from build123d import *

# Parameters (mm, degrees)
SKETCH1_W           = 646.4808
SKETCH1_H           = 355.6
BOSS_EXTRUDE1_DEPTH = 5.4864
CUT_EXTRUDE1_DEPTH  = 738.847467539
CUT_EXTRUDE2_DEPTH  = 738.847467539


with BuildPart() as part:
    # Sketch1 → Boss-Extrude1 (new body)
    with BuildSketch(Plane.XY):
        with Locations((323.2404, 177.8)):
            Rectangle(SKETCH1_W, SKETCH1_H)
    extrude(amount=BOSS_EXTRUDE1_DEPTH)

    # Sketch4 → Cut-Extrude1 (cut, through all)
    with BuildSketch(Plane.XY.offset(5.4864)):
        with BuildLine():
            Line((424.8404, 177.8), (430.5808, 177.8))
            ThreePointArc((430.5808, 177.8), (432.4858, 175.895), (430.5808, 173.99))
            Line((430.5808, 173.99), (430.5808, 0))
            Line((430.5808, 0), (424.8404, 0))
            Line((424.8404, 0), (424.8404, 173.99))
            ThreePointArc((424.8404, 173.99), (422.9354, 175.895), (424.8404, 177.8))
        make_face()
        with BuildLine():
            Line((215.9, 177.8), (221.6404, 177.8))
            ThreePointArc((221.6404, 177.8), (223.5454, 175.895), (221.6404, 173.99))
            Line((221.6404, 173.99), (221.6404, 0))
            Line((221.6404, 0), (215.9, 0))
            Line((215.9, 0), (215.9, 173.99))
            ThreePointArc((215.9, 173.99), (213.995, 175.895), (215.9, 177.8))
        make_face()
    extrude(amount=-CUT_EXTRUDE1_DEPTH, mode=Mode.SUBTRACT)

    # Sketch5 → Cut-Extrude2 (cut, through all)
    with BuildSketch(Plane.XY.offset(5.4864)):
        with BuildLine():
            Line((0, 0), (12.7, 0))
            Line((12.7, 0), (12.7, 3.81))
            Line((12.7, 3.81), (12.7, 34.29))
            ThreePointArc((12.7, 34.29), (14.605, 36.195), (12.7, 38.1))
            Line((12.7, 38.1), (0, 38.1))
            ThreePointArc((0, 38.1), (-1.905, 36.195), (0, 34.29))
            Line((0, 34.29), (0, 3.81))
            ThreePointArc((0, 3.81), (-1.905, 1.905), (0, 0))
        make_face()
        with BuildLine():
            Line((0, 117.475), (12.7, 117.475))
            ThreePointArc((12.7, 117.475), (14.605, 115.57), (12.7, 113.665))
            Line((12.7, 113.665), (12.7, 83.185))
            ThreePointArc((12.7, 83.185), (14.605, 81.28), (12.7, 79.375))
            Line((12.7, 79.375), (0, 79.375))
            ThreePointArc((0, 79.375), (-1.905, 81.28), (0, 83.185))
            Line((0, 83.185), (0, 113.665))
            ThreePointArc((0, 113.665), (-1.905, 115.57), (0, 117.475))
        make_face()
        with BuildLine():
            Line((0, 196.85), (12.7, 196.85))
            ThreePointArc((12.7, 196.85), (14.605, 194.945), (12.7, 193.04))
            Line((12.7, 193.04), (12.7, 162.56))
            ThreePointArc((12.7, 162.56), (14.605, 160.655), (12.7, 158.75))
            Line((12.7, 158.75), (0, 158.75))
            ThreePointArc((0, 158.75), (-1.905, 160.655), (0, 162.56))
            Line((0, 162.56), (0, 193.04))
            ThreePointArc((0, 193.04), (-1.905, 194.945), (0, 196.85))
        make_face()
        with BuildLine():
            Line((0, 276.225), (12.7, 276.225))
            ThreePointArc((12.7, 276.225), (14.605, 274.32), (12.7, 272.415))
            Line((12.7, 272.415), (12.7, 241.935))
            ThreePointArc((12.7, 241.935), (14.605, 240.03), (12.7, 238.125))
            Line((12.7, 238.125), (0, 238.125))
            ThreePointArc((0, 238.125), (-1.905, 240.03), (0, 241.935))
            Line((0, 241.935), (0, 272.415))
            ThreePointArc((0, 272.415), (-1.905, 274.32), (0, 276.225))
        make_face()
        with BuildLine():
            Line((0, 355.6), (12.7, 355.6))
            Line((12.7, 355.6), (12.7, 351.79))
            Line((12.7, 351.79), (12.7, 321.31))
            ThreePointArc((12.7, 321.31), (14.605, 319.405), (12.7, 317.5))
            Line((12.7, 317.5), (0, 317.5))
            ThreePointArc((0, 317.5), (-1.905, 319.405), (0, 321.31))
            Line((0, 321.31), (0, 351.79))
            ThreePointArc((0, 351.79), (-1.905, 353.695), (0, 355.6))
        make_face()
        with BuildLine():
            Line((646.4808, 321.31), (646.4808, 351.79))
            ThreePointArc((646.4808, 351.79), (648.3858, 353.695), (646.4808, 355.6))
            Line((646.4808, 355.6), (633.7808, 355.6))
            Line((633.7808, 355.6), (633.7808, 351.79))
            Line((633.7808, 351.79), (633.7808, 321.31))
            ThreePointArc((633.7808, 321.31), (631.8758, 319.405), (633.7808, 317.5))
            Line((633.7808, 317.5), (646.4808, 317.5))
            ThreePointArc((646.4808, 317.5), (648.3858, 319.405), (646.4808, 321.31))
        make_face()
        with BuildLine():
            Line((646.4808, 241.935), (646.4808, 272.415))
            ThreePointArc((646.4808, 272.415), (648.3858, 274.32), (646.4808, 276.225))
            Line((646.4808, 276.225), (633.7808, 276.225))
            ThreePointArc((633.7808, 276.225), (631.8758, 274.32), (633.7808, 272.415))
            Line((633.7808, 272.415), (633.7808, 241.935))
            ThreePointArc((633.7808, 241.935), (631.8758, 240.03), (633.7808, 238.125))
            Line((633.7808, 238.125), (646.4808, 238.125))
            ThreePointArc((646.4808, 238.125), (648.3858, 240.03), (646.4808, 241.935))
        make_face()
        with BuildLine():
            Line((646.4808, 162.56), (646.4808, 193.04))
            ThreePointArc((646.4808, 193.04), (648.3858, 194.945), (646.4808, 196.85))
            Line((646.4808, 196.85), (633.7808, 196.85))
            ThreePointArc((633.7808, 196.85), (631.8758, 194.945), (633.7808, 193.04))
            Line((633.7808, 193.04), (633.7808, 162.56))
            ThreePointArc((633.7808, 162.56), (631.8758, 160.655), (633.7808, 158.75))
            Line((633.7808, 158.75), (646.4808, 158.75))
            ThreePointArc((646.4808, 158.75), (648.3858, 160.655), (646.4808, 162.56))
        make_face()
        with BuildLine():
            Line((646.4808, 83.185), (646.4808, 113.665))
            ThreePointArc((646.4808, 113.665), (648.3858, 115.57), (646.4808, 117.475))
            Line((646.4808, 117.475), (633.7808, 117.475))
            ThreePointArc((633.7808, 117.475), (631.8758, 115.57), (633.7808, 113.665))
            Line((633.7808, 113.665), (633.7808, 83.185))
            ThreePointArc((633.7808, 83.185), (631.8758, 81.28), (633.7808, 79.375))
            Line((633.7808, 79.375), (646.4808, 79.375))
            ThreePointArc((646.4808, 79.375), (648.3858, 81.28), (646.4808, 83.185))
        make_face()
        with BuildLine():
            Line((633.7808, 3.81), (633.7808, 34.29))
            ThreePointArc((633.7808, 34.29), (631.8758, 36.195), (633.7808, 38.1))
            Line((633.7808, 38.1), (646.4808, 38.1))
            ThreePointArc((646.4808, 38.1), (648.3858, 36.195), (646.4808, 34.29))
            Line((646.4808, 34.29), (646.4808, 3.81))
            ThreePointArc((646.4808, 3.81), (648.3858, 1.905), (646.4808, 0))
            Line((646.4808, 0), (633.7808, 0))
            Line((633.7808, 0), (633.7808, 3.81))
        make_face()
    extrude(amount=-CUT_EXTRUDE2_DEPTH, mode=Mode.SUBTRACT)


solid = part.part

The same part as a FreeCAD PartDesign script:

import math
import FreeCAD as App
import Part
import Sketcher
Q = App.Units.Quantity


def add_polygon(sketch, points):
    """Adds a closed chain of lines whose ends are joined by coincident constraints."""
    first, n = sketch.GeometryCount, len(points)
    for a, b in zip(points, points[1:] + points[:1]):
        sketch.addGeometry(Part.LineSegment(App.Vector(*a, 0), App.Vector(*b, 0)), False)
    for i in range(n):
        sketch.addConstraint(Sketcher.Constraint("Coincident", first + i, 2, first + (i + 1) % n, 1))

doc = App.newDocument("Part")
body = doc.addObject("PartDesign::Body", "Body")

sketch1 = body.newObject("Sketcher::SketchObject", "Sketch")
sketch1.AttachmentSupport = (doc.getObject("XY_Plane"), [""])
sketch1.MapMode = "FlatFace"
add_polygon(sketch1, [(0, 356), (0, 0), (646, 0), (646, 356)])
sketch1.addConstraint(Sketcher.Constraint("Vertical", 0))
sketch1.addConstraint(Sketcher.Constraint("Horizontal", 1))
sketch1.addConstraint(Sketcher.Constraint("Vertical", 2))
sketch1.addConstraint(Sketcher.Constraint("Horizontal", 3))
sketch1.addConstraint(Sketcher.Constraint("Coincident", 0, 2, -1, 1))
sketch1.addConstraint(Sketcher.Constraint("DistanceY", 0, 2, 0, 1, Q("14 in")))
sketch1.addConstraint(Sketcher.Constraint("DistanceX", 1, 1, 1, 2, Q("25.452 in")))
pad1 = body.newObject("PartDesign::Pad", "Pad")
pad1.Profile = sketch1
pad1.Length = Q("0.216 in")

sketch2 = body.newObject("Sketcher::SketchObject", "Sketch001")
sketch2.AttachmentSupport = (doc.getObject("XY_Plane"), [""])
sketch2.MapMode = "FlatFace"
sketch2.AttachmentOffset = App.Placement(App.Vector(0, 0, 0.216 * 25.4), App.Rotation())
sketch2.addGeometry(Part.LineSegment(App.Vector(430.6, 177.8, 0), App.Vector(424.8, 177.8, 0)), False)
sketch2.addGeometry(Part.ArcOfCircle(Part.Circle(App.Vector(424.8, 175.9, 0), App.Vector(0, 0, 1), 1.9), math.radians(90), math.radians(270)), False)
sketch2.addGeometry(Part.LineSegment(App.Vector(424.8, 174, 0), App.Vector(424.8, 0, 0)), False)
sketch2.addGeometry(Part.LineSegment(App.Vector(424.8, 0, 0), App.Vector(430.6, 0, 0)), False)
sketch2.addGeometry(Part.LineSegment(App.Vector(430.6, 0, 0), App.Vector(430.6, 174, 0)), False)
sketch2.addGeometry(Part.ArcOfCircle(Part.Circle(App.Vector(430.6, 175.9, 0), App.Vector(0, 0, 1), 1.9), math.radians(-90), math.radians(90)), False)
sketch2.addGeometry(Part.LineSegment(App.Vector(221.6, 177.8, 0), App.Vector(215.9, 177.8, 0)), False)
sketch2.addGeometry(Part.ArcOfCircle(Part.Circle(App.Vector(215.9, 175.9, 0), App.Vector(0, 0, 1), 1.9), math.radians(90), math.radians(270)), False)
sketch2.addGeometry(Part.LineSegment(App.Vector(215.9, 174, 0), App.Vector(215.9, 0, 0)), False)
sketch2.addGeometry(Part.LineSegment(App.Vector(215.9, 0, 0), App.Vector(221.6, 0, 0)), False)
sketch2.addGeometry(Part.LineSegment(App.Vector(221.6, 0, 0), App.Vector(221.6, 174, 0)), False)
sketch2.addGeometry(Part.ArcOfCircle(Part.Circle(App.Vector(221.6, 175.9, 0), App.Vector(0, 0, 1), 1.9), math.radians(-90), math.radians(90)), False)
sketch2.addConstraint(Sketcher.Constraint("Tangent", 0, 2, 1, 1))
sketch2.addConstraint(Sketcher.Constraint("Coincident", 1, 2, 2, 1))
sketch2.addConstraint(Sketcher.Constraint("Coincident", 2, 2, 3, 1))
sketch2.addConstraint(Sketcher.Constraint("Coincident", 3, 2, 4, 1))
sketch2.addConstraint(Sketcher.Constraint("Coincident", 4, 2, 5, 1))
sketch2.addConstraint(Sketcher.Constraint("Tangent", 5, 2, 0, 1))
sketch2.addConstraint(Sketcher.Constraint("Tangent", 6, 2, 7, 1))
sketch2.addConstraint(Sketcher.Constraint("Coincident", 7, 2, 8, 1))
sketch2.addConstraint(Sketcher.Constraint("Coincident", 8, 2, 9, 1))
sketch2.addConstraint(Sketcher.Constraint("Coincident", 9, 2, 10, 1))
sketch2.addConstraint(Sketcher.Constraint("Coincident", 10, 2, 11, 1))
sketch2.addConstraint(Sketcher.Constraint("Tangent", 11, 2, 6, 1))
sketch2.addConstraint(Sketcher.Constraint("Horizontal", 0))
sketch2.addConstraint(Sketcher.Constraint("Vertical", 2))
sketch2.addConstraint(Sketcher.Constraint("Horizontal", 3))
sketch2.addConstraint(Sketcher.Constraint("Vertical", 4))
sketch2.addConstraint(Sketcher.Constraint("Horizontal", 6))
sketch2.addConstraint(Sketcher.Constraint("Vertical", 8))
sketch2.addConstraint(Sketcher.Constraint("Horizontal", 9))
sketch2.addConstraint(Sketcher.Constraint("Vertical", 10))
sketch2.addConstraint(Sketcher.Constraint("Equal", 1, 5))
sketch2.addConstraint(Sketcher.Constraint("Equal", 5, 7))
sketch2.addConstraint(Sketcher.Constraint("Equal", 7, 11))
sketch2.addConstraint(Sketcher.Constraint("PointOnObject", 2, 2, -1))
sketch2.addConstraint(Sketcher.Constraint("PointOnObject", 8, 2, -1))
sketch2.addConstraint(Sketcher.Constraint("Horizontal", 5, 3, 7, 3))
sketch2.addConstraint(Sketcher.Constraint("Vertical", 0, 2, 1, 2))
sketch2.addConstraint(Sketcher.Constraint("Vertical", 5, 3, 3, 2))
sketch2.addConstraint(Sketcher.Constraint("Vertical", 6, 2, 7, 2))
sketch2.addConstraint(Sketcher.Constraint("Vertical", 11, 3, 9, 2))
sketch2.addConstraint(Sketcher.Constraint("Equal", 3, 6))
sketch2.addConstraint(Sketcher.Constraint("DistanceY", -1, 1, 0, 2, Q("7 in")))
sketch2.addConstraint(Sketcher.Constraint("Radius", 1, Q("0.075 in")))
sketch2.addConstraint(Sketcher.Constraint("DistanceX", 11, 3, 1, 3, Q("8 in")))
sketch2.addConstraint(Sketcher.Constraint("DistanceX", -1, 1, 7, 3, Q("8.5 in")))
sketch2.addConstraint(Sketcher.Constraint("DistanceX", 0, 2, 0, 1, Q("0.226 in")))
pocket1 = body.newObject("PartDesign::Pocket", "Pocket")
pocket1.Profile = sketch2
pocket1.Type = "ThroughAll"

sketch3 = body.newObject("Sketcher::SketchObject", "Sketch002")
sketch3.AttachmentSupport = (doc.getObject("XY_Plane"), [""])
sketch3.MapMode = "FlatFace"
sketch3.AttachmentOffset = App.Placement(App.Vector(0, 0, 0.216 * 25.4), App.Rotation())
sketch3.addGeometry(Part.LineSegment(App.Vector(0, 0, 0), App.Vector(12.7, 0, 0)), False)
sketch3.addGeometry(Part.LineSegment(App.Vector(12.7, 0, 0), App.Vector(12.7, 34.3, 0)), False)
sketch3.addGeometry(Part.ArcOfCircle(Part.Circle(App.Vector(12.7, 36.2, 0), App.Vector(0, 0, 1), 1.9), math.radians(-90), math.radians(90)), False)
sketch3.addGeometry(Part.LineSegment(App.Vector(12.7, 38.1, 0), App.Vector(0, 38.1, 0)), False)
sketch3.addGeometry(Part.ArcOfCircle(Part.Circle(App.Vector(0, 36.2, 0), App.Vector(0, 0, 1), 1.9), math.radians(90), math.radians(270)), False)
sketch3.addGeometry(Part.LineSegment(App.Vector(0, 34.3, 0), App.Vector(0, 3.8, 0)), False)
sketch3.addGeometry(Part.ArcOfCircle(Part.Circle(App.Vector(0, 1.9, 0), App.Vector(0, 0, 1), 1.9), math.radians(90), math.radians(270)), False)
sketch3.addGeometry(Part.LineSegment(App.Vector(12.7, 117.5, 0), App.Vector(0, 117.5, 0)), False)
sketch3.addGeometry(Part.ArcOfCircle(Part.Circle(App.Vector(0, 115.6, 0), App.Vector(0, 0, 1), 1.9), math.radians(90), math.radians(270)), False)
sketch3.addGeometry(Part.LineSegment(App.Vector(0, 113.7, 0), App.Vector(0, 83.2, 0)), False)
sketch3.addGeometry(Part.ArcOfCircle(Part.Circle(App.Vector(0, 81.3, 0), App.Vector(0, 0, 1), 1.9), math.radians(90), math.radians(270)), False)
sketch3.addGeometry(Part.LineSegment(App.Vector(0, 79.4, 0), App.Vector(12.7, 79.4, 0)), False)
sketch3.addGeometry(Part.ArcOfCircle(Part.Circle(App.Vector(12.7, 81.3, 0), App.Vector(0, 0, 1), 1.9), math.radians(-90), math.radians(90)), False)
sketch3.addGeometry(Part.LineSegment(App.Vector(12.7, 83.2, 0), App.Vector(12.7, 113.7, 0)), False)
sketch3.addGeometry(Part.ArcOfCircle(Part.Circle(App.Vector(12.7, 115.6, 0), App.Vector(0, 0, 1), 1.9), math.radians(-90), math.radians(90)), False)
sketch3.addGeometry(Part.LineSegment(App.Vector(12.7, 196.8, 0), App.Vector(0, 196.8, 0)), False)
sketch3.addGeometry(Part.ArcOfCircle(Part.Circle(App.Vector(0, 194.9, 0), App.Vector(0, 0, 1), 1.9), math.radians(90), math.radians(270)), False)
sketch3.addGeometry(Part.LineSegment(App.Vector(0, 193, 0), App.Vector(0, 162.6, 0)), False)
sketch3.addGeometry(Part.ArcOfCircle(Part.Circle(App.Vector(0, 160.7, 0), App.Vector(0, 0, 1), 1.9), math.radians(90), math.radians(270)), False)
sketch3.addGeometry(Part.LineSegment(App.Vector(0, 158.8, 0), App.Vector(12.7, 158.8, 0)), False)
sketch3.addGeometry(Part.ArcOfCircle(Part.Circle(App.Vector(12.7, 160.7, 0), App.Vector(0, 0, 1), 1.9), math.radians(-90), math.radians(90)), False)
sketch3.addGeometry(Part.LineSegment(App.Vector(12.7, 162.6, 0), App.Vector(12.7, 193, 0)), False)
sketch3.addGeometry(Part.ArcOfCircle(Part.Circle(App.Vector(12.7, 194.9, 0), App.Vector(0, 0, 1), 1.9), math.radians(-90), math.radians(90)), False)
sketch3.addGeometry(Part.LineSegment(App.Vector(12.7, 276.2, 0), App.Vector(0, 276.2, 0)), False)
sketch3.addGeometry(Part.ArcOfCircle(Part.Circle(App.Vector(0, 274.3, 0), App.Vector(0, 0, 1), 1.9), math.radians(90), math.radians(270)), False)
sketch3.addGeometry(Part.LineSegment(App.Vector(0, 272.4, 0), App.Vector(0, 241.9, 0)), False)
sketch3.addGeometry(Part.ArcOfCircle(Part.Circle(App.Vector(0, 240, 0), App.Vector(0, 0, 1), 1.9), math.radians(90), math.radians(270)), False)
sketch3.addGeometry(Part.LineSegment(App.Vector(0, 238.1, 0), App.Vector(12.7, 238.1, 0)), False)
sketch3.addGeometry(Part.ArcOfCircle(Part.Circle(App.Vector(12.7, 240, 0), App.Vector(0, 0, 1), 1.9), math.radians(-90), math.radians(90)), False)
sketch3.addGeometry(Part.LineSegment(App.Vector(12.7, 241.9, 0), App.Vector(12.7, 272.4, 0)), False)
sketch3.addGeometry(Part.ArcOfCircle(Part.Circle(App.Vector(12.7, 274.3, 0), App.Vector(0, 0, 1), 1.9), math.radians(-90), math.radians(90)), False)
sketch3.addGeometry(Part.LineSegment(App.Vector(12.7, 355.6, 0), App.Vector(0, 355.6, 0)), False)
sketch3.addGeometry(Part.ArcOfCircle(Part.Circle(App.Vector(0, 353.7, 0), App.Vector(0, 0, 1), 1.9), math.radians(90), math.radians(270)), False)
sketch3.addGeometry(Part.LineSegment(App.Vector(0, 351.8, 0), App.Vector(0, 321.3, 0)), False)
sketch3.addGeometry(Part.ArcOfCircle(Part.Circle(App.Vector(0, 319.4, 0), App.Vector(0, 0, 1), 1.9), math.radians(90), math.radians(270)), False)
sketch3.addGeometry(Part.LineSegment(App.Vector(0, 317.5, 0), App.Vector(12.7, 317.5, 0)), False)
sketch3.addGeometry(Part.ArcOfCircle(Part.Circle(App.Vector(12.7, 319.4, 0), App.Vector(0, 0, 1), 1.9), math.radians(-90), math.radians(90)), False)
sketch3.addGeometry(Part.LineSegment(App.Vector(12.7, 321.3, 0), App.Vector(12.7, 355.6, 0)), False)
sketch3.addGeometry(Part.LineSegment(App.Vector(646.5, 321.3, 0), App.Vector(646.5, 351.8, 0)), False)
sketch3.addGeometry(Part.ArcOfCircle(Part.Circle(App.Vector(646.5, 353.7, 0), App.Vector(0, 0, 1), 1.9), math.radians(-90), math.radians(90)), False)
sketch3.addGeometry(Part.LineSegment(App.Vector(646.5, 355.6, 0), App.Vector(633.8, 355.6, 0)), False)
sketch3.addGeometry(Part.LineSegment(App.Vector(633.8, 355.6, 0), App.Vector(633.8, 321.3, 0)), False)
sketch3.addGeometry(Part.ArcOfCircle(Part.Circle(App.Vector(633.8, 319.4, 0), App.Vector(0, 0, 1), 1.9), math.radians(90), math.radians(270)), False)
sketch3.addGeometry(Part.LineSegment(App.Vector(633.8, 317.5, 0), App.Vector(646.5, 317.5, 0)), False)
sketch3.addGeometry(Part.ArcOfCircle(Part.Circle(App.Vector(646.5, 319.4, 0), App.Vector(0, 0, 1), 1.9), math.radians(-90), math.radians(90)), False)
sketch3.addGeometry(Part.LineSegment(App.Vector(646.5, 241.9, 0), App.Vector(646.5, 272.4, 0)), False)
sketch3.addGeometry(Part.ArcOfCircle(Part.Circle(App.Vector(646.5, 274.3, 0), App.Vector(0, 0, 1), 1.9), math.radians(-90), math.radians(90)), False)
sketch3.addGeometry(Part.LineSegment(App.Vector(646.5, 276.2, 0), App.Vector(633.8, 276.2, 0)), False)
sketch3.addGeometry(Part.ArcOfCircle(Part.Circle(App.Vector(633.8, 274.3, 0), App.Vector(0, 0, 1), 1.9), math.radians(90), math.radians(270)), False)
sketch3.addGeometry(Part.LineSegment(App.Vector(633.8, 272.4, 0), App.Vector(633.8, 241.9, 0)), False)
sketch3.addGeometry(Part.ArcOfCircle(Part.Circle(App.Vector(633.8, 240, 0), App.Vector(0, 0, 1), 1.9), math.radians(90), math.radians(270)), False)
sketch3.addGeometry(Part.LineSegment(App.Vector(633.8, 238.1, 0), App.Vector(646.5, 238.1, 0)), False)
sketch3.addGeometry(Part.ArcOfCircle(Part.Circle(App.Vector(646.5, 240, 0), App.Vector(0, 0, 1), 1.9), math.radians(-90), math.radians(90)), False)
sketch3.addGeometry(Part.LineSegment(App.Vector(646.5, 162.6, 0), App.Vector(646.5, 193, 0)), False)
sketch3.addGeometry(Part.ArcOfCircle(Part.Circle(App.Vector(646.5, 194.9, 0), App.Vector(0, 0, 1), 1.9), math.radians(-90), math.radians(90)), False)
sketch3.addGeometry(Part.LineSegment(App.Vector(646.5, 196.8, 0), App.Vector(633.8, 196.8, 0)), False)
sketch3.addGeometry(Part.ArcOfCircle(Part.Circle(App.Vector(633.8, 194.9, 0), App.Vector(0, 0, 1), 1.9), math.radians(90), math.radians(270)), False)
sketch3.addGeometry(Part.LineSegment(App.Vector(633.8, 193, 0), App.Vector(633.8, 162.6, 0)), False)
sketch3.addGeometry(Part.ArcOfCircle(Part.Circle(App.Vector(633.8, 160.7, 0), App.Vector(0, 0, 1), 1.9), math.radians(90), math.radians(270)), False)
sketch3.addGeometry(Part.LineSegment(App.Vector(633.8, 158.8, 0), App.Vector(646.5, 158.8, 0)), False)
sketch3.addGeometry(Part.ArcOfCircle(Part.Circle(App.Vector(646.5, 160.7, 0), App.Vector(0, 0, 1), 1.9), math.radians(-90), math.radians(90)), False)
sketch3.addGeometry(Part.LineSegment(App.Vector(646.5, 83.2, 0), App.Vector(646.5, 113.7, 0)), False)
sketch3.addGeometry(Part.ArcOfCircle(Part.Circle(App.Vector(646.5, 115.6, 0), App.Vector(0, 0, 1), 1.9), math.radians(-90), math.radians(90)), False)
sketch3.addGeometry(Part.LineSegment(App.Vector(646.5, 117.5, 0), App.Vector(633.8, 117.5, 0)), False)
sketch3.addGeometry(Part.ArcOfCircle(Part.Circle(App.Vector(633.8, 115.6, 0), App.Vector(0, 0, 1), 1.9), math.radians(90), math.radians(270)), False)
sketch3.addGeometry(Part.LineSegment(App.Vector(633.8, 113.7, 0), App.Vector(633.8, 83.2, 0)), False)
sketch3.addGeometry(Part.ArcOfCircle(Part.Circle(App.Vector(633.8, 81.3, 0), App.Vector(0, 0, 1), 1.9), math.radians(90), math.radians(270)), False)
sketch3.addGeometry(Part.LineSegment(App.Vector(633.8, 79.4, 0), App.Vector(646.5, 79.4, 0)), False)
sketch3.addGeometry(Part.ArcOfCircle(Part.Circle(App.Vector(646.5, 81.3, 0), App.Vector(0, 0, 1), 1.9), math.radians(-90), math.radians(90)), False)
sketch3.addGeometry(Part.ArcOfCircle(Part.Circle(App.Vector(633.8, 36.2, 0), App.Vector(0, 0, 1), 1.9), math.radians(90), math.radians(270)), False)
sketch3.addGeometry(Part.LineSegment(App.Vector(633.8, 34.3, 0), App.Vector(633.8, 0, 0)), False)
sketch3.addGeometry(Part.LineSegment(App.Vector(633.8, 0, 0), App.Vector(646.5, 0, 0)), False)
sketch3.addGeometry(Part.ArcOfCircle(Part.Circle(App.Vector(646.5, 1.9, 0), App.Vector(0, 0, 1), 1.9), math.radians(-90), math.radians(90)), False)
sketch3.addGeometry(Part.LineSegment(App.Vector(646.5, 3.8, 0), App.Vector(646.5, 34.3, 0)), False)
sketch3.addGeometry(Part.ArcOfCircle(Part.Circle(App.Vector(646.5, 36.2, 0), App.Vector(0, 0, 1), 1.9), math.radians(-90), math.radians(90)), False)
sketch3.addGeometry(Part.LineSegment(App.Vector(646.5, 38.1, 0), App.Vector(633.8, 38.1, 0)), False)
sketch3.addConstraint(Sketcher.Constraint("Coincident", 0, 2, 1, 1))
sketch3.addConstraint(Sketcher.Constraint("Coincident", 1, 2, 2, 1))
sketch3.addConstraint(Sketcher.Constraint("Tangent", 2, 2, 3, 1))
sketch3.addConstraint(Sketcher.Constraint("Tangent", 3, 2, 4, 1))
sketch3.addConstraint(Sketcher.Constraint("Coincident", 4, 2, 5, 1))
sketch3.addConstraint(Sketcher.Constraint("Coincident", 5, 2, 6, 1))
sketch3.addConstraint(Sketcher.Constraint("Tangent", 6, 2, 0, 1))
sketch3.addConstraint(Sketcher.Constraint("Tangent", 7, 2, 8, 1))
sketch3.addConstraint(Sketcher.Constraint("Coincident", 8, 2, 9, 1))
sketch3.addConstraint(Sketcher.Constraint("Coincident", 9, 2, 10, 1))
sketch3.addConstraint(Sketcher.Constraint("Tangent", 10, 2, 11, 1))
sketch3.addConstraint(Sketcher.Constraint("Tangent", 11, 2, 12, 1))
sketch3.addConstraint(Sketcher.Constraint("Coincident", 12, 2, 13, 1))
sketch3.addConstraint(Sketcher.Constraint("Coincident", 13, 2, 14, 1))
sketch3.addConstraint(Sketcher.Constraint("Tangent", 14, 2, 7, 1))
sketch3.addConstraint(Sketcher.Constraint("Tangent", 15, 2, 16, 1))
sketch3.addConstraint(Sketcher.Constraint("Coincident", 16, 2, 17, 1))
sketch3.addConstraint(Sketcher.Constraint("Coincident", 17, 2, 18, 1))
sketch3.addConstraint(Sketcher.Constraint("Tangent", 18, 2, 19, 1))
sketch3.addConstraint(Sketcher.Constraint("Tangent", 19, 2, 20, 1))
sketch3.addConstraint(Sketcher.Constraint("Coincident", 20, 2, 21, 1))
sketch3.addConstraint(Sketcher.Constraint("Coincident", 21, 2, 22, 1))
sketch3.addConstraint(Sketcher.Constraint("Tangent", 22, 2, 15, 1))
sketch3.addConstraint(Sketcher.Constraint("Tangent", 23, 2, 24, 1))
sketch3.addConstraint(Sketcher.Constraint("Coincident", 24, 2, 25, 1))
sketch3.addConstraint(Sketcher.Constraint("Coincident", 25, 2, 26, 1))
sketch3.addConstraint(Sketcher.Constraint("Tangent", 26, 2, 27, 1))
sketch3.addConstraint(Sketcher.Constraint("Tangent", 27, 2, 28, 1))
sketch3.addConstraint(Sketcher.Constraint("Coincident", 28, 2, 29, 1))
sketch3.addConstraint(Sketcher.Constraint("Coincident", 29, 2, 30, 1))
sketch3.addConstraint(Sketcher.Constraint("Tangent", 30, 2, 23, 1))
sketch3.addConstraint(Sketcher.Constraint("Tangent", 31, 2, 32, 1))
sketch3.addConstraint(Sketcher.Constraint("Coincident", 32, 2, 33, 1))
sketch3.addConstraint(Sketcher.Constraint("Coincident", 33, 2, 34, 1))
sketch3.addConstraint(Sketcher.Constraint("Tangent", 34, 2, 35, 1))
sketch3.addConstraint(Sketcher.Constraint("Tangent", 35, 2, 36, 1))
sketch3.addConstraint(Sketcher.Constraint("Coincident", 36, 2, 37, 1))
sketch3.addConstraint(Sketcher.Constraint("Coincident", 37, 2, 31, 1))
sketch3.addConstraint(Sketcher.Constraint("Coincident", 38, 2, 39, 1))
sketch3.addConstraint(Sketcher.Constraint("Tangent", 39, 2, 40, 1))
sketch3.addConstraint(Sketcher.Constraint("Coincident", 40, 2, 41, 1))
sketch3.addConstraint(Sketcher.Constraint("Coincident", 41, 2, 42, 1))
sketch3.addConstraint(Sketcher.Constraint("Tangent", 42, 2, 43, 1))
sketch3.addConstraint(Sketcher.Constraint("Tangent", 43, 2, 44, 1))
sketch3.addConstraint(Sketcher.Constraint("Coincident", 44, 2, 38, 1))
sketch3.addConstraint(Sketcher.Constraint("Coincident", 45, 2, 46, 1))
sketch3.addConstraint(Sketcher.Constraint("Tangent", 46, 2, 47, 1))
sketch3.addConstraint(Sketcher.Constraint("Tangent", 47, 2, 48, 1))
sketch3.addConstraint(Sketcher.Constraint("Coincident", 48, 2, 49, 1))
sketch3.addConstraint(Sketcher.Constraint("Coincident", 49, 2, 50, 1))
sketch3.addConstraint(Sketcher.Constraint("Tangent", 50, 2, 51, 1))
sketch3.addConstraint(Sketcher.Constraint("Tangent", 51, 2, 52, 1))
sketch3.addConstraint(Sketcher.Constraint("Coincident", 52, 2, 45, 1))
sketch3.addConstraint(Sketcher.Constraint("Coincident", 53, 2, 54, 1))
sketch3.addConstraint(Sketcher.Constraint("Tangent", 54, 2, 55, 1))
sketch3.addConstraint(Sketcher.Constraint("Tangent", 55, 2, 56, 1))
sketch3.addConstraint(Sketcher.Constraint("Coincident", 56, 2, 57, 1))
sketch3.addConstraint(Sketcher.Constraint("Coincident", 57, 2, 58, 1))
sketch3.addConstraint(Sketcher.Constraint("Tangent", 58, 2, 59, 1))
sketch3.addConstraint(Sketcher.Constraint("Tangent", 59, 2, 60, 1))
sketch3.addConstraint(Sketcher.Constraint("Coincident", 60, 2, 53, 1))
sketch3.addConstraint(Sketcher.Constraint("Coincident", 61, 2, 62, 1))
sketch3.addConstraint(Sketcher.Constraint("Tangent", 62, 2, 63, 1))
sketch3.addConstraint(Sketcher.Constraint("Tangent", 63, 2, 64, 1))
sketch3.addConstraint(Sketcher.Constraint("Coincident", 64, 2, 65, 1))
sketch3.addConstraint(Sketcher.Constraint("Coincident", 65, 2, 66, 1))
sketch3.addConstraint(Sketcher.Constraint("Tangent", 66, 2, 67, 1))
sketch3.addConstraint(Sketcher.Constraint("Tangent", 67, 2, 68, 1))
sketch3.addConstraint(Sketcher.Constraint("Coincident", 68, 2, 61, 1))
sketch3.addConstraint(Sketcher.Constraint("Coincident", 69, 2, 70, 1))
sketch3.addConstraint(Sketcher.Constraint("Coincident", 70, 2, 71, 1))
sketch3.addConstraint(Sketcher.Constraint("Tangent", 71, 2, 72, 1))
sketch3.addConstraint(Sketcher.Constraint("Coincident", 72, 2, 73, 1))
sketch3.addConstraint(Sketcher.Constraint("Coincident", 73, 2, 74, 1))
sketch3.addConstraint(Sketcher.Constraint("Tangent", 74, 2, 75, 1))
sketch3.addConstraint(Sketcher.Constraint("Tangent", 75, 2, 69, 1))
sketch3.addConstraint(Sketcher.Constraint("Horizontal", 0))
sketch3.addConstraint(Sketcher.Constraint("Vertical", 1))
sketch3.addConstraint(Sketcher.Constraint("Horizontal", 3))
sketch3.addConstraint(Sketcher.Constraint("Vertical", 5))
sketch3.addConstraint(Sketcher.Constraint("Horizontal", 7))
sketch3.addConstraint(Sketcher.Constraint("Vertical", 9))
sketch3.addConstraint(Sketcher.Constraint("Horizontal", 11))
sketch3.addConstraint(Sketcher.Constraint("Vertical", 13))
sketch3.addConstraint(Sketcher.Constraint("Horizontal", 15))
sketch3.addConstraint(Sketcher.Constraint("Vertical", 17))
sketch3.addConstraint(Sketcher.Constraint("Horizontal", 19))
sketch3.addConstraint(Sketcher.Constraint("Vertical", 21))
sketch3.addConstraint(Sketcher.Constraint("Horizontal", 23))
sketch3.addConstraint(Sketcher.Constraint("Vertical", 25))
sketch3.addConstraint(Sketcher.Constraint("Horizontal", 27))
sketch3.addConstraint(Sketcher.Constraint("Vertical", 29))
sketch3.addConstraint(Sketcher.Constraint("Horizontal", 31))
sketch3.addConstraint(Sketcher.Constraint("Vertical", 33))
sketch3.addConstraint(Sketcher.Constraint("Horizontal", 35))
sketch3.addConstraint(Sketcher.Constraint("Vertical", 37))
sketch3.addConstraint(Sketcher.Constraint("Vertical", 38))
sketch3.addConstraint(Sketcher.Constraint("Horizontal", 40))
sketch3.addConstraint(Sketcher.Constraint("Vertical", 41))
sketch3.addConstraint(Sketcher.Constraint("Horizontal", 43))
sketch3.addConstraint(Sketcher.Constraint("Vertical", 45))
sketch3.addConstraint(Sketcher.Constraint("Horizontal", 47))
sketch3.addConstraint(Sketcher.Constraint("Vertical", 49))
sketch3.addConstraint(Sketcher.Constraint("Horizontal", 51))
sketch3.addConstraint(Sketcher.Constraint("Vertical", 53))
sketch3.addConstraint(Sketcher.Constraint("Horizontal", 55))
sketch3.addConstraint(Sketcher.Constraint("Vertical", 57))
sketch3.addConstraint(Sketcher.Constraint("Horizontal", 59))
sketch3.addConstraint(Sketcher.Constraint("Vertical", 61))
sketch3.addConstraint(Sketcher.Constraint("Horizontal", 63))
sketch3.addConstraint(Sketcher.Constraint("Vertical", 65))
sketch3.addConstraint(Sketcher.Constraint("Horizontal", 67))
sketch3.addConstraint(Sketcher.Constraint("Vertical", 70))
sketch3.addConstraint(Sketcher.Constraint("Horizontal", 71))
sketch3.addConstraint(Sketcher.Constraint("Vertical", 73))
sketch3.addConstraint(Sketcher.Constraint("Horizontal", 75))
sketch3.addConstraint(Sketcher.Constraint("Coincident", 6, 2, -1, 1))
sketch3.addConstraint(Sketcher.Constraint("Equal", 2, 4))
sketch3.addConstraint(Sketcher.Constraint("Equal", 4, 6))
sketch3.addConstraint(Sketcher.Constraint("Equal", 6, 8))
sketch3.addConstraint(Sketcher.Constraint("Equal", 8, 10))
sketch3.addConstraint(Sketcher.Constraint("Equal", 10, 12))
sketch3.addConstraint(Sketcher.Constraint("Equal", 12, 14))
sketch3.addConstraint(Sketcher.Constraint("Equal", 14, 16))
sketch3.addConstraint(Sketcher.Constraint("Equal", 16, 18))
sketch3.addConstraint(Sketcher.Constraint("Equal", 18, 20))
sketch3.addConstraint(Sketcher.Constraint("Equal", 20, 22))
sketch3.addConstraint(Sketcher.Constraint("Equal", 22, 24))
sketch3.addConstraint(Sketcher.Constraint("Equal", 24, 26))
sketch3.addConstraint(Sketcher.Constraint("Equal", 26, 28))
sketch3.addConstraint(Sketcher.Constraint("Equal", 28, 30))
sketch3.addConstraint(Sketcher.Constraint("Equal", 30, 32))
sketch3.addConstraint(Sketcher.Constraint("Equal", 32, 34))
sketch3.addConstraint(Sketcher.Constraint("Equal", 34, 36))
sketch3.addConstraint(Sketcher.Constraint("Equal", 36, 39))
sketch3.addConstraint(Sketcher.Constraint("Equal", 39, 42))
sketch3.addConstraint(Sketcher.Constraint("Equal", 42, 44))
sketch3.addConstraint(Sketcher.Constraint("Equal", 44, 46))
sketch3.addConstraint(Sketcher.Constraint("Equal", 46, 48))
sketch3.addConstraint(Sketcher.Constraint("Equal", 48, 50))
sketch3.addConstraint(Sketcher.Constraint("Equal", 50, 52))
sketch3.addConstraint(Sketcher.Constraint("Equal", 52, 54))
sketch3.addConstraint(Sketcher.Constraint("Equal", 54, 56))
sketch3.addConstraint(Sketcher.Constraint("Equal", 56, 58))
sketch3.addConstraint(Sketcher.Constraint("Equal", 58, 60))
sketch3.addConstraint(Sketcher.Constraint("Equal", 60, 62))
sketch3.addConstraint(Sketcher.Constraint("Equal", 62, 64))
sketch3.addConstraint(Sketcher.Constraint("Equal", 64, 66))
sketch3.addConstraint(Sketcher.Constraint("Equal", 66, 68))
sketch3.addConstraint(Sketcher.Constraint("Equal", 68, 69))
sketch3.addConstraint(Sketcher.Constraint("Equal", 69, 72))
sketch3.addConstraint(Sketcher.Constraint("Equal", 72, 74))
sketch3.addConstraint(Sketcher.Constraint("PointOnObject", 4, 3, -2))
sketch3.addConstraint(Sketcher.Constraint("PointOnObject", 8, 3, -2))
sketch3.addConstraint(Sketcher.Constraint("PointOnObject", 10, 3, -2))
sketch3.addConstraint(Sketcher.Constraint("PointOnObject", 16, 3, -2))
sketch3.addConstraint(Sketcher.Constraint("PointOnObject", 18, 3, -2))
sketch3.addConstraint(Sketcher.Constraint("PointOnObject", 24, 3, -2))
sketch3.addConstraint(Sketcher.Constraint("PointOnObject", 26, 3, -2))
sketch3.addConstraint(Sketcher.Constraint("PointOnObject", 32, 3, -2))
sketch3.addConstraint(Sketcher.Constraint("PointOnObject", 34, 3, -2))
sketch3.addConstraint(Sketcher.Constraint("PointOnObject", 4, 2, -2))
sketch3.addConstraint(Sketcher.Constraint("PointOnObject", 8, 2, -2))
sketch3.addConstraint(Sketcher.Constraint("PointOnObject", 16, 2, -2))
sketch3.addConstraint(Sketcher.Constraint("PointOnObject", 24, 2, -2))
sketch3.addConstraint(Sketcher.Constraint("PointOnObject", 32, 2, -2))
sketch3.addConstraint(Sketcher.Constraint("PointOnObject", 70, 2, -1))
sketch3.addConstraint(Sketcher.Constraint("Horizontal", 32, 3, 39, 3))
sketch3.addConstraint(Sketcher.Constraint("Horizontal", 36, 3, 42, 3))
sketch3.addConstraint(Sketcher.Constraint("Horizontal", 30, 3, 46, 3))
sketch3.addConstraint(Sketcher.Constraint("Horizontal", 28, 3, 50, 3))
sketch3.addConstraint(Sketcher.Constraint("Horizontal", 22, 3, 54, 3))
sketch3.addConstraint(Sketcher.Constraint("Horizontal", 20, 3, 58, 3))
sketch3.addConstraint(Sketcher.Constraint("Horizontal", 14, 3, 62, 3))
sketch3.addConstraint(Sketcher.Constraint("Horizontal", 12, 3, 66, 3))
sketch3.addConstraint(Sketcher.Constraint("Horizontal", 4, 3, 69, 3))
sketch3.addConstraint(Sketcher.Constraint("Vertical", 2, 3, 12, 3))
sketch3.addConstraint(Sketcher.Constraint("Vertical", 12, 3, 14, 3))
sketch3.addConstraint(Sketcher.Constraint("Vertical", 14, 3, 20, 3))
sketch3.addConstraint(Sketcher.Constraint("Vertical", 20, 3, 22, 3))
sketch3.addConstraint(Sketcher.Constraint("Vertical", 22, 3, 28, 3))
sketch3.addConstraint(Sketcher.Constraint("Vertical", 28, 3, 30, 3))
sketch3.addConstraint(Sketcher.Constraint("Vertical", 30, 3, 36, 3))
sketch3.addConstraint(Sketcher.Constraint("Vertical", 39, 3, 44, 3))
sketch3.addConstraint(Sketcher.Constraint("Vertical", 44, 3, 46, 3))
sketch3.addConstraint(Sketcher.Constraint("Vertical", 42, 3, 48, 3))
sketch3.addConstraint(Sketcher.Constraint("Vertical", 48, 3, 50, 3))
sketch3.addConstraint(Sketcher.Constraint("Vertical", 46, 3, 52, 3))
sketch3.addConstraint(Sketcher.Constraint("Vertical", 52, 3, 54, 3))
sketch3.addConstraint(Sketcher.Constraint("Vertical", 50, 3, 56, 3))
sketch3.addConstraint(Sketcher.Constraint("Vertical", 56, 3, 58, 3))
sketch3.addConstraint(Sketcher.Constraint("Vertical", 54, 3, 60, 3))
sketch3.addConstraint(Sketcher.Constraint("Vertical", 60, 3, 62, 3))
sketch3.addConstraint(Sketcher.Constraint("Vertical", 58, 3, 64, 3))
sketch3.addConstraint(Sketcher.Constraint("Vertical", 64, 3, 66, 3))
sketch3.addConstraint(Sketcher.Constraint("Vertical", 62, 3, 68, 3))
sketch3.addConstraint(Sketcher.Constraint("Vertical", 66, 3, 69, 3))
sketch3.addConstraint(Sketcher.Constraint("Vertical", 68, 3, 72, 3))
sketch3.addConstraint(Sketcher.Constraint("Vertical", 72, 3, 74, 3))
sketch3.addConstraint(Sketcher.Constraint("Vertical", 36, 3, 0, 2))
sketch3.addConstraint(Sketcher.Constraint("Vertical", 11, 2, 12, 2))
sketch3.addConstraint(Sketcher.Constraint("Vertical", 19, 2, 20, 2))
sketch3.addConstraint(Sketcher.Constraint("Vertical", 27, 2, 28, 2))
sketch3.addConstraint(Sketcher.Constraint("Vertical", 35, 2, 36, 2))
sketch3.addConstraint(Sketcher.Constraint("Vertical", 74, 3, 38, 2))
sketch3.addConstraint(Sketcher.Constraint("Vertical", 69, 3, 40, 2))
sketch3.addConstraint(Sketcher.Constraint("Vertical", 44, 2, 45, 2))
sketch3.addConstraint(Sketcher.Constraint("Vertical", 47, 2, 48, 2))
sketch3.addConstraint(Sketcher.Constraint("Vertical", 52, 2, 53, 2))
sketch3.addConstraint(Sketcher.Constraint("Vertical", 55, 2, 56, 2))
sketch3.addConstraint(Sketcher.Constraint("Vertical", 60, 2, 61, 2))
sketch3.addConstraint(Sketcher.Constraint("Vertical", 63, 2, 64, 2))
sketch3.addConstraint(Sketcher.Constraint("Vertical", 66, 2, 69, 2))
sketch3.addConstraint(Sketcher.Constraint("Vertical", 71, 2, 72, 2))
sketch3.addConstraint(Sketcher.Constraint("Equal", 35, 40))
sketch3.addConstraint(Sketcher.Constraint("Equal", 5, 9))
sketch3.addConstraint(Sketcher.Constraint("Equal", 13, 17))
sketch3.addConstraint(Sketcher.Constraint("Equal", 21, 25))
sketch3.addConstraint(Sketcher.Constraint("Equal", 29, 33))
sketch3.addConstraint(Sketcher.Constraint("DistanceX", 0, 1, 0, 2, Q("0.5 in")))
sketch3.addConstraint(Sketcher.Constraint("DistanceY", 5, 2, 5, 1, Q("1.2 in")))
sketch3.addConstraint(Sketcher.Constraint("DistanceY", -1, 1, 31, 2, Q("14 in")))
sketch3.addConstraint(Sketcher.Constraint("Radius", 2, Q("0.075 in")))
sketch3.addConstraint(Sketcher.Constraint("DistanceY", -1, 1, 10, 3, Q("3.2 in")))
sketch3.addConstraint(Sketcher.Constraint("DistanceY", -1, 1, 24, 3, Q("10.8 in")))
sketch3.addConstraint(Sketcher.Constraint("DistanceY", -1, 1, 16, 2, Q("7.6 in")))
sketch3.addConstraint(Sketcher.Constraint("DistanceX", -1, 1, 39, 3, Q("25.452 in")))
pocket2 = body.newObject("PartDesign::Pocket", "Pocket001")
pocket2.Profile = sketch3
pocket2.Type = "ThroughAll"

doc.recompute()
